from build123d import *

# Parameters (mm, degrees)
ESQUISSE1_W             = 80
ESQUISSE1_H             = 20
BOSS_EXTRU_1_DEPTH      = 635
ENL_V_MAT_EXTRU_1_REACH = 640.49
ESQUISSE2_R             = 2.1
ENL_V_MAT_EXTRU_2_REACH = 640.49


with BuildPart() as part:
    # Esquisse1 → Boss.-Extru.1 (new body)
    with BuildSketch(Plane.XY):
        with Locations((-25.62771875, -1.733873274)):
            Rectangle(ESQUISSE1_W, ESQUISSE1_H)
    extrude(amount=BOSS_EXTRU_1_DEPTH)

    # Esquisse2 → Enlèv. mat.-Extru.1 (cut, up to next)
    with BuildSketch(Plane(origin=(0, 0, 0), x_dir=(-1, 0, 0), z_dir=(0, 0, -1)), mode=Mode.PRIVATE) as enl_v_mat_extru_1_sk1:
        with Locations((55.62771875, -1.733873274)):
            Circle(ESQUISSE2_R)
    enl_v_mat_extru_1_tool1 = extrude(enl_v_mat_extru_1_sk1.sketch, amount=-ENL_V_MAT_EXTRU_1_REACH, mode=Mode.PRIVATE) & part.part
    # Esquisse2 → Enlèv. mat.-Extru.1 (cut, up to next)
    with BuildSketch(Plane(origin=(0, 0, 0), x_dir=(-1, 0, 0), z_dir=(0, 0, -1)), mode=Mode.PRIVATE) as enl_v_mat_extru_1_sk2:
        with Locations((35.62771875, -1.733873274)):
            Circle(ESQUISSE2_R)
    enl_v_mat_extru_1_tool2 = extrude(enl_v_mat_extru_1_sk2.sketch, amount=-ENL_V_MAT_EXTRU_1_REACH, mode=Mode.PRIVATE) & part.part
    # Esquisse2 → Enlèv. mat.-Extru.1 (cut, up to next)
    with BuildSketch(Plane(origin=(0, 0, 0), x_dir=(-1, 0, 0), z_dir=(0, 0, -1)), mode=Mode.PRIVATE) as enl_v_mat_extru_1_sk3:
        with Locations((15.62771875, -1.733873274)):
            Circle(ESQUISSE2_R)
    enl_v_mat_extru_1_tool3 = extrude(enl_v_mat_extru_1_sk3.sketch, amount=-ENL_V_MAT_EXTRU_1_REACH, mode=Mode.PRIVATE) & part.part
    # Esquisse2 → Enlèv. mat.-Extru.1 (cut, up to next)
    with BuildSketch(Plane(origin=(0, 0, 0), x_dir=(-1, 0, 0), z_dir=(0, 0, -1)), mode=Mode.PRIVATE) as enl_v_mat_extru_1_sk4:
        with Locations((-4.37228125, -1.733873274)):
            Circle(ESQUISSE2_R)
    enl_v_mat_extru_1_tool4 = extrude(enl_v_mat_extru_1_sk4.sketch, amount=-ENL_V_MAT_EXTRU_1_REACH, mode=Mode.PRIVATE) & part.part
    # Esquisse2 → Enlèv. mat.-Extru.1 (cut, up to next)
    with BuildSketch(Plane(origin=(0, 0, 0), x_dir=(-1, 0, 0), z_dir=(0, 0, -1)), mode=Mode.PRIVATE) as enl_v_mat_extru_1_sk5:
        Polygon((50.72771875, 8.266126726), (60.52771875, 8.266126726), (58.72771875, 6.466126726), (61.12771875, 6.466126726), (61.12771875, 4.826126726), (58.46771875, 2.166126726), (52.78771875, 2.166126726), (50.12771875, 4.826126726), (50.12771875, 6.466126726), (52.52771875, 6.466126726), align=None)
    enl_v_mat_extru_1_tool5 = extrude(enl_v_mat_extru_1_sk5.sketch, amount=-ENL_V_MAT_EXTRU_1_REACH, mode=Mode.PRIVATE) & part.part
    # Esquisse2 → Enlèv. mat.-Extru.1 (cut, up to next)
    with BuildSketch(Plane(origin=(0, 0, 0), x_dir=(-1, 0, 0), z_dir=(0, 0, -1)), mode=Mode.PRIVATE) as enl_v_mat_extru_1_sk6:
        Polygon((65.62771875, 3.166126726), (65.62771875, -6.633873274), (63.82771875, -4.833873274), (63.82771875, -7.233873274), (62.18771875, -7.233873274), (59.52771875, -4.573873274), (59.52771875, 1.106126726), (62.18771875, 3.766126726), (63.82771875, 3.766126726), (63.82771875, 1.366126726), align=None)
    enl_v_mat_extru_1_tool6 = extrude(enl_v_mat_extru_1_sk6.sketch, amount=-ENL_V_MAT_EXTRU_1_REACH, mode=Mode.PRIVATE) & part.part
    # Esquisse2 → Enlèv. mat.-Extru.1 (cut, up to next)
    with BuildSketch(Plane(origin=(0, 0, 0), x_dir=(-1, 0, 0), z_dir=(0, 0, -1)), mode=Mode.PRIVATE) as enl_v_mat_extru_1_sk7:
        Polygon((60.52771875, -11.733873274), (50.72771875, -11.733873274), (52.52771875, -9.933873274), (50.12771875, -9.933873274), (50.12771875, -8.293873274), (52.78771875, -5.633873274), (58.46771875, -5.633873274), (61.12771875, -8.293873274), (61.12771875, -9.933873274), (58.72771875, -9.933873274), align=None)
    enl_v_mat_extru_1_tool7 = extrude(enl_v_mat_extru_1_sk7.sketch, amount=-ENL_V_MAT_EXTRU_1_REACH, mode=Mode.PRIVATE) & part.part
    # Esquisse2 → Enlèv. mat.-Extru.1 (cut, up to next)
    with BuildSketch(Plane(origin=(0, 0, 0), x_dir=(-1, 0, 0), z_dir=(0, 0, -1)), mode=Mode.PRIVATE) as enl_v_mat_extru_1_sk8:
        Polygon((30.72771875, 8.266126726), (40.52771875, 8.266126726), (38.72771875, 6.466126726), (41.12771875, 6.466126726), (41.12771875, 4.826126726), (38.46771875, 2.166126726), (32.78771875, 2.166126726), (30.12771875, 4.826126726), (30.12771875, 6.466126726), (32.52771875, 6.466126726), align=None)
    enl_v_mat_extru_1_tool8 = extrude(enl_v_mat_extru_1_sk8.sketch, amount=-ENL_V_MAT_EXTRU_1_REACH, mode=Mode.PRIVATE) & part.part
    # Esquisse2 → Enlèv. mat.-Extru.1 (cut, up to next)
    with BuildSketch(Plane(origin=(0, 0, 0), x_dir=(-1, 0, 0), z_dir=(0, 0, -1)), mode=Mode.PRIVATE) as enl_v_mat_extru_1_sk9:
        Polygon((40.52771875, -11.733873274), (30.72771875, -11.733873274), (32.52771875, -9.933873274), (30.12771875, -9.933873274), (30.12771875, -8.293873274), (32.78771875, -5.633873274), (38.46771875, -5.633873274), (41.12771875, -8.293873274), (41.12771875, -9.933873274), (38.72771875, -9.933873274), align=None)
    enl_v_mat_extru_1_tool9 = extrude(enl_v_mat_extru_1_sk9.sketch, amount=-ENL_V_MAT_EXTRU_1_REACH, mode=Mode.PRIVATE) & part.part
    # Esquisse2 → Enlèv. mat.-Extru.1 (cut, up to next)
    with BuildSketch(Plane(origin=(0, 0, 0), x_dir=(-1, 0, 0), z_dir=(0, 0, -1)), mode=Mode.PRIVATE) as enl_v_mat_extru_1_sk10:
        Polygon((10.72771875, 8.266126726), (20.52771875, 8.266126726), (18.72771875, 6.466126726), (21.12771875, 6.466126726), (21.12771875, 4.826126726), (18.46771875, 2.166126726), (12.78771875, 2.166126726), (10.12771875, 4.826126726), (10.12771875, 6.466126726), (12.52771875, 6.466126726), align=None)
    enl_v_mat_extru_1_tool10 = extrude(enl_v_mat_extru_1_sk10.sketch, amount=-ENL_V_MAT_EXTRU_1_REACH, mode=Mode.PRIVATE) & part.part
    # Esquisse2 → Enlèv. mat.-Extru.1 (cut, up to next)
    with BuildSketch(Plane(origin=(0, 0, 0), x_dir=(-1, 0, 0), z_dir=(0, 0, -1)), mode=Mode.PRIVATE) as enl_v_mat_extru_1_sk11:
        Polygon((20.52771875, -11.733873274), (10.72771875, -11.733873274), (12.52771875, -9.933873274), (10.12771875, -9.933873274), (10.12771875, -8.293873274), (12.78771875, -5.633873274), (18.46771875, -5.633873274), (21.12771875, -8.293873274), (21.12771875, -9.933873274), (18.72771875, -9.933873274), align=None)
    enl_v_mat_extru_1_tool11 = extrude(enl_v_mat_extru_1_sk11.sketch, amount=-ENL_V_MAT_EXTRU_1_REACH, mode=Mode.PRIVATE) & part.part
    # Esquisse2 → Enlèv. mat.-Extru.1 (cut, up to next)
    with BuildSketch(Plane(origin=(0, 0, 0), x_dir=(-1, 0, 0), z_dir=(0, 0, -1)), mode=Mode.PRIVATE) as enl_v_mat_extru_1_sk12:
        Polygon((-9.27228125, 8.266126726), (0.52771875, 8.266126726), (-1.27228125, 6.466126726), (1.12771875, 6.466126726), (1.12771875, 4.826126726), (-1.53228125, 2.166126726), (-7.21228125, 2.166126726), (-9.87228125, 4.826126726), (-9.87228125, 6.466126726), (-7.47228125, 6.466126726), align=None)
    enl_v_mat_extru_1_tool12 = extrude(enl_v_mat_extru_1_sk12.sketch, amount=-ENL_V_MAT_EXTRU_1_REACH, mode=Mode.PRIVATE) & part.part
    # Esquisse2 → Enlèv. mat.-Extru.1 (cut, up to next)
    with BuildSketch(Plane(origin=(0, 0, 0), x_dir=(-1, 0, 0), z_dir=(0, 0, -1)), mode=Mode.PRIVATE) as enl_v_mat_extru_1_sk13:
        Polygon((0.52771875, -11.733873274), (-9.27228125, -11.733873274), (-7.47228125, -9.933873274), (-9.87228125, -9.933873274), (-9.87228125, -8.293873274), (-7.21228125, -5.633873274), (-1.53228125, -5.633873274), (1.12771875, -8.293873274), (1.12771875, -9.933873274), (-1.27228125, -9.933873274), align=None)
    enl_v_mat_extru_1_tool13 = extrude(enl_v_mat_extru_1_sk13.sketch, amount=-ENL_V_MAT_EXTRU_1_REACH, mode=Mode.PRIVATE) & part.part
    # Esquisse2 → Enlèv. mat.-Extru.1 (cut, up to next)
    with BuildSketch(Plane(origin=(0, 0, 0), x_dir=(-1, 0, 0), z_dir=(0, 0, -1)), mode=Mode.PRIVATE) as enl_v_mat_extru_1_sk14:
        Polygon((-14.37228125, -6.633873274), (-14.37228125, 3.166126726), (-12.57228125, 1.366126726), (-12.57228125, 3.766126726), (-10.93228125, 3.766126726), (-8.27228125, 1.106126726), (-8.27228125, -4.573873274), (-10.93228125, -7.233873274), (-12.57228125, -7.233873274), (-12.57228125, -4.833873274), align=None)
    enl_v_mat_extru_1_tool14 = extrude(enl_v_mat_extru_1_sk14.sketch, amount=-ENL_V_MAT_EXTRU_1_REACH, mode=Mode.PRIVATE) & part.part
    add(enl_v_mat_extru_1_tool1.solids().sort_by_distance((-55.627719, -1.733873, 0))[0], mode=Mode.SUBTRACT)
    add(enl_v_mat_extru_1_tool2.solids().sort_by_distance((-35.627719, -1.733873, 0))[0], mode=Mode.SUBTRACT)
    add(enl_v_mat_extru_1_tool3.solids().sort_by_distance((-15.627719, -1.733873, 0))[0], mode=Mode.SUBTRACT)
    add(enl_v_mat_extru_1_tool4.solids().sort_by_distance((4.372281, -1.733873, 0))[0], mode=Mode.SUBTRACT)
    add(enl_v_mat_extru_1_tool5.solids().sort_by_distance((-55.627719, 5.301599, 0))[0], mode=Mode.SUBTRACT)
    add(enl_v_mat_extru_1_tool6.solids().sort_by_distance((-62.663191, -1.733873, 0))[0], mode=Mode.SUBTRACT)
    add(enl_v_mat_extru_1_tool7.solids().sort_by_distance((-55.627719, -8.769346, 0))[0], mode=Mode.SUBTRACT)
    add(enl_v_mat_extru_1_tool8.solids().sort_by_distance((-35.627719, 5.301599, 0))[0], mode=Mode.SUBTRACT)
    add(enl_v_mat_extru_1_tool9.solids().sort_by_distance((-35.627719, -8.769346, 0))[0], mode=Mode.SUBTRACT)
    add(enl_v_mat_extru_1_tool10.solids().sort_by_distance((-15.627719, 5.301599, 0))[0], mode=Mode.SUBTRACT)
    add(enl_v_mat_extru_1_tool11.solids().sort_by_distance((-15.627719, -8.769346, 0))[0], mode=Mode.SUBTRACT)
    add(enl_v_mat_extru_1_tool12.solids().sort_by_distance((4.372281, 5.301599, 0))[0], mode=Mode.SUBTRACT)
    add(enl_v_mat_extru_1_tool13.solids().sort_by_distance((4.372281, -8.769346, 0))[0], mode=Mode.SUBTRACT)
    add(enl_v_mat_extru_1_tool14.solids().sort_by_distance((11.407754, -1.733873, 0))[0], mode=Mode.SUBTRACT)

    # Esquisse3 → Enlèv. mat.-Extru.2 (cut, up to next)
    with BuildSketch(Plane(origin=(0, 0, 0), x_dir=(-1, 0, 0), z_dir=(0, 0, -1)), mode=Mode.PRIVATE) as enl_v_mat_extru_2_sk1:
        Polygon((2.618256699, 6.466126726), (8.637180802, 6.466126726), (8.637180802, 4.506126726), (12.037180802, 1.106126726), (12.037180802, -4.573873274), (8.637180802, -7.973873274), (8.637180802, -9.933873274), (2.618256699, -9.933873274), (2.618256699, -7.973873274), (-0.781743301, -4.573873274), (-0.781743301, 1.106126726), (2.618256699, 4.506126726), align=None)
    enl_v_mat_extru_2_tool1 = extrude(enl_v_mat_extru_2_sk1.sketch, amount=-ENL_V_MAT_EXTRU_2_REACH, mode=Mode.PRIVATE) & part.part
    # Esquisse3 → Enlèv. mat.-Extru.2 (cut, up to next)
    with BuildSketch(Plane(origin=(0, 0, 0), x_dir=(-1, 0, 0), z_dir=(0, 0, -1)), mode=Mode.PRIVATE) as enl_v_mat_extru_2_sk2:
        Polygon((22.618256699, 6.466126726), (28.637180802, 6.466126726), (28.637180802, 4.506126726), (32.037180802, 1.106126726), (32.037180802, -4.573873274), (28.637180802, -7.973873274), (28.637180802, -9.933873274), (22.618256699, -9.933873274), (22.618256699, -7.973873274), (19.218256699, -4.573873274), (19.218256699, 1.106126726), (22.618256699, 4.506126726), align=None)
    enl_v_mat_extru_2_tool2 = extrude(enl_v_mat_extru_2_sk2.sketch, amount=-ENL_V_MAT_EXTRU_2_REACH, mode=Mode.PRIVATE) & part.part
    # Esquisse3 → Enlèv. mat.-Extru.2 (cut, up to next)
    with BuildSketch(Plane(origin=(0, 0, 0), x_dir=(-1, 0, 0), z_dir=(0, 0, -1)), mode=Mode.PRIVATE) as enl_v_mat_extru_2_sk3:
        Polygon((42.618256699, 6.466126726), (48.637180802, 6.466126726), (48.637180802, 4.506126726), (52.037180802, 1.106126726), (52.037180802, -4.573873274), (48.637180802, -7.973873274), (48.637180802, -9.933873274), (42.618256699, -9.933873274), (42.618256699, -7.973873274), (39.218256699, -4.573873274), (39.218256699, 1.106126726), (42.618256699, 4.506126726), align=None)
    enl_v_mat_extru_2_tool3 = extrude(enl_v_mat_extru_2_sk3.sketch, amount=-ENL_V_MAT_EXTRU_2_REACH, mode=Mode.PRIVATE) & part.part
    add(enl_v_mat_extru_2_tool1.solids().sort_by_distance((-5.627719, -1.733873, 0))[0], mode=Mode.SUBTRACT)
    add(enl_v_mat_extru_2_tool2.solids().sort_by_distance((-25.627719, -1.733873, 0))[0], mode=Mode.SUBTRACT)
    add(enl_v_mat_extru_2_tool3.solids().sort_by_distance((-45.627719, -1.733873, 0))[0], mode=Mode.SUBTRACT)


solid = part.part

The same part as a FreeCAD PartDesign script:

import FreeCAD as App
import Part
import Sketcher
from FreeCAD import Vector


def add_polygon(sketch, points):
    """Adds a closed chain of lines whose ends are joined by coincident constraints."""
    first, n = sketch.GeometryCount, len(points)
    for a, b in zip(points, points[1:] + points[:1]):
        sketch.addGeometry(Part.LineSegment(App.Vector(*a, 0), App.Vector(*b, 0)), False)
    for i in range(n):
        sketch.addConstraint(Sketcher.Constraint("Coincident", first + i, 2, first + (i + 1) % n, 1))

doc = App.newDocument("Part")
params = doc.addObject("Spreadsheet::Sheet", "Params")
for row, (alias, value) in enumerate([
    ("sketch1_width", "80 mm"),
    ("sketch1_height", "20 mm"),
    ("pad1_length", "635 mm"),
    ("sketch2_diameter", "4.2 mm"),
    ("sketch3_diameter", "4.2 mm"),
    ("sketch4_diameter", "4.2 mm"),
    ("sketch5_diameter", "4.2 mm"),
    ("sketch6_width", "9.8 mm"),
    ("sketch6_width2", "2.4 mm"),
    ("sketch6_width3", "5.68 mm"),
    ("sketch6_height", "1.64 mm"),
    ("sketch7_height", "9.8 mm"),
    ("sketch7_height2", "2.4 mm"),
    ("sketch7_width", "1.64 mm"),
    ("sketch7_height3", "5.68 mm"),
    ("sketch8_width", "9.8 mm"),
    ("sketch8_width2", "2.4 mm"),
    ("sketch8_width3", "5.68 mm"),
    ("sketch8_height", "1.64 mm"),
    ("sketch9_width", "9.8 mm"),
    ("sketch9_width2", "2.4 mm"),
    ("sketch9_width3", "5.68 mm"),
    ("sketch9_height", "1.64 mm"),
    ("sketch10_width", "9.8 mm"),
    ("sketch10_width2", "2.4 mm"),
    ("sketch10_width3", "5.68 mm"),
    ("sketch10_height", "1.64 mm"),
    ("sketch11_width", "9.8 mm"),
    ("sketch11_width2", "2.4 mm"),
    ("sketch11_width3", "5.68 mm"),
    ("sketch11_height", "1.64 mm"),
    ("sketch12_width", "9.8 mm"),
    ("sketch12_width2", "2.4 mm"),
    ("sketch12_width3", "5.68 mm"),
    ("sketch12_height", "1.64 mm"),
    ("sketch13_width", "9.8 mm"),
    ("sketch13_width2", "2.4 mm"),
    ("sketch13_width3", "5.68 mm"),
    ("sketch13_height", "1.64 mm"),
    ("sketch14_width", "9.8 mm"),
    ("sketch14_width2", "2.4 mm"),
    ("sketch14_width3", "5.68 mm"),
    ("sketch14_height", "1.64 mm"),
    ("sketch15_height", "9.8 mm"),
    ("sketch15_height2", "2.4 mm"),
    ("sketch15_width", "1.64 mm"),
    ("sketch15_height3", "5.68 mm"),
    ("sketch16_height", "1.96 mm"),
    ("sketch16_height2", "5.68 mm"),
    ("sketch17_height", "1.96 mm"),
    ("sketch17_height2", "5.68 mm"),
    ("sketch18_height", "1.96 mm"),
    ("sketch18_height2", "5.68 mm"),
], start=1):
    params.set(f"A{row}", alias)
    params.set(f"B{row}", "=" + value)
    params.setAlias(f"B{row}", alias)

body = doc.addObject("PartDesign::Body", "Body")

sketch1 = body.newObject("Sketcher::SketchObject", "Sketch")
sketch1.AttachmentSupport = (doc.getObject("XY_Plane"), [""])
sketch1.MapMode = "FlatFace"
add_polygon(sketch1, [(-66, 8), (-66, -12), (14, -12), (14, 8)])
sketch1.addConstraint([
    Sketcher.Constraint("Vertical", 0),
    Sketcher.Constraint("Horizontal", 1),
    Sketcher.Constraint("Vertical", 2),
    Sketcher.Constraint("Horizontal", 3),
    Sketcher.Constraint("DistanceX", 1, 1, 1, 2, 80.0),
    Sketcher.Constraint("DistanceY", 0, 2, 0, 1, 20.0),
    Sketcher.Constraint("DistanceX", 0, 2, -1, 1, 65.627719),
    Sketcher.Constraint("DistanceY", 0, 2, -1, 1, 11.733873),
])
sketch1.setExpression("Constraints[8]", "Params.sketch1_width")
sketch1.setExpression("Constraints[9]", "Params.sketch1_height")
pad1 = body.newObject("PartDesign::Pad", "Pad")
pad1.Profile = sketch1
pad1.setExpression("Length", "Params.pad1_length")

sketch2 = body.newObject("Sketcher::SketchObject", "Sketch001")
sketch2.AttachmentSupport = (doc.getObject("XY_Plane"), [""])
sketch2.MapMode = "FlatFace"
sketch2.addGeometry(Part.Circle(Vector(-55.6, -1.7, 0), Vector(0, 0, 1), 2.1), False)
sketch2.addConstraint([
    Sketcher.Constraint("Diameter", 0, 4.2),
    Sketcher.Constraint("DistanceX", 0, 3, -1, 1, 55.627719),
    Sketcher.Constraint("DistanceY", 0, 3, -1, 1, 1.733873),
])
sketch2.setExpression("Constraints[0]", "Params.sketch2_diameter")
pocket1 = body.newObject("PartDesign::Pocket", "Pocket")
pocket1.Profile = sketch2
pocket1.Type = "UpToFirst"
pocket1.Reversed = True

sketch3 = body.newObject("Sketcher::SketchObject", "Sketch002")
sketch3.AttachmentSupport = (doc.getObject("XY_Plane"), [""])
sketch3.MapMode = "FlatFace"
sketch3.addGeometry(Part.Circle(Vector(-35.6, -1.7, 0), Vector(0, 0, 1), 2.1), False)
sketch3.addConstraint([
    Sketcher.Constraint("Diameter", 0, 4.2),
    Sketcher.Constraint("DistanceX", 0, 3, -1, 1, 35.627719),
    Sketcher.Constraint("DistanceY", 0, 3, -1, 1, 1.733873),
])
sketch3.setExpression("Constraints[0]", "Params.sketch3_diameter")
pocket2 = body.newObject("PartDesign::Pocket", "Pocket001")
pocket2.Profile = sketch3
pocket2.Type = "UpToFirst"
pocket2.Reversed = True

sketch4 = body.newObject("Sketcher::SketchObject", "Sketch003")
sketch4.AttachmentSupport = (doc.getObject("XY_Plane"), [""])
sketch4.MapMode = "FlatFace"
sketch4.addGeometry(Part.Circle(Vector(-15.6, -1.7, 0), Vector(0, 0, 1), 2.1), False)
sketch4.addConstraint([
    Sketcher.Constraint("Diameter", 0, 4.2),
    Sketcher.Constraint("DistanceX", 0, 3, -1, 1, 15.627719),
    Sketcher.Constraint("DistanceY", 0, 3, -1, 1, 1.733873),
])
sketch4.setExpression("Constraints[0]", "Params.sketch4_diameter")
pocket3 = body.newObject("PartDesign::Pocket", "Pocket002")
pocket3.Profile = sketch4
pocket3.Type = "UpToFirst"
pocket3.Reversed = True

sketch5 = body.newObject("Sketcher::SketchObject", "Sketch004")
sketch5.AttachmentSupport = (doc.getObject("XY_Plane"), [""])
sketch5.MapMode = "FlatFace"
sketch5.addGeometry(Part.Circle(Vector(4.4, -1.7, 0), Vector(0, 0, 1), 2.1), False)
sketch5.addConstraint([
    Sketcher.Constraint("Diameter", 0, 4.2),
    Sketcher.Constraint("DistanceX", -1, 1, 0, 3, 4.372281),
    Sketcher.Constraint("DistanceY", 0, 3, -1, 1, 1.733873),
])
sketch5.setExpression("Constraints[0]", "Params.sketch5_diameter")
pocket4 = body.newObject("PartDesign::Pocket", "Pocket003")
pocket4.Profile = sketch5
pocket4.Type = "UpToFirst"
pocket4.Reversed = True

sketch6 = body.newObject("Sketcher::SketchObject", "Sketch005")
sketch6.AttachmentSupport = (doc.getObject("XY_Plane"), [""])
sketch6.MapMode = "FlatFace"
add_polygon(sketch6, [(-60.5, 8.3), (-50.7, 8.3), (-52.5, 6.5), (-50.1, 6.5), (-50.1, 4.8), (-52.8, 2.2), (-58.5, 2.2), (-61.1, 4.8), (-61.1, 6.5), (-58.7, 6.5)])
sketch6.addConstraint([
    Sketcher.Constraint("Horizontal", 0),
    Sketcher.Constraint("Horizontal", 2),
    Sketcher.Constraint("Vertical", 3),
    Sketcher.Constraint("Horizontal", 5),
    Sketcher.Constraint("Vertical", 7),
    Sketcher.Constraint("Horizontal", 8),
    Sketcher.Constraint("Parallel", 1, 4),
    Sketcher.Constraint("Perpendicular", 4, 6),
    Sketcher.Constraint("Parallel", 6, 9),
    Sketcher.Constraint("Horizontal", 3, 2, 6, 2),
    Sketcher.Constraint("Horizontal", 2, 2, 7, 2),
    Sketcher.Constraint("Equal", 2, 8),
    Sketcher.Constraint("Equal", 4, 6),
    Sketcher.Constraint("DistanceX", 0, 1, 0, 2, 9.8),
    Sketcher.Constraint("DistanceX", 2, 1, 2, 2, 2.4),
    Sketcher.Constraint("DistanceX", 6, 2, 3, 2, 11.0),
    Sketcher.Constraint("DistanceX", 5, 2, 5, 1, 5.68),
    Sketcher.Constraint("DistanceY", 3, 2, 3, 1, 1.64),
    Sketcher.Constraint("DistanceX", 0, 2, -1, 1, 50.727719),
    Sketcher.Constraint("DistanceY", -1, 1, 0, 2, 8.266127),
])
sketch6.setExpression("Constraints[23]", "Params.sketch6_width")
sketch6.setExpression("Constraints[24]", "Params.sketch6_width2")
sketch6.setExpression("Constraints[26]", "Params.sketch6_width3")
sketch6.setExpression("Constraints[27]", "Params.sketch6_height")
pocket5 = body.newObject("PartDesign::Pocket", "Pocket004")
pocket5.Profile = sketch6
pocket5.Type = "UpToFirst"
pocket5.Reversed = True

sketch7 = body.newObject("Sketcher::SketchObject", "Sketch006")
sketch7.AttachmentSupport = (doc.getObject("XY_Plane"), [""])
sketch7.MapMode = "FlatFace"
add_polygon(sketch7, [(-65.6, -6.6), (-65.6, 3.2), (-63.8, 1.4), (-63.8, 3.8), (-62.2, 3.8), (-59.5, 1.1), (-59.5, -4.6), (-62.2, -7.2), (-63.8, -7.2), (-63.8, -4.8)])
sketch7.addConstraint([
    Sketcher.Constraint("Vertical", 0),
    Sketcher.Constraint("Vertical", 2),
    Sketcher.Constraint("Horizontal", 3),
    Sketcher.Constraint("Vertical", 5),
    Sketcher.Constraint("Horizontal", 7),
    Sketcher.Constraint("Vertical", 8),
    Sketcher.Constraint("Parallel", 1, 4),
    Sketcher.Constraint("Perpendicular", 4, 6),
    Sketcher.Constraint("Parallel", 6, 9),
    Sketcher.Constraint("Vertical", 3, 2, 6, 2),
    Sketcher.Constraint("Vertical", 2, 2, 7, 2),
    Sketcher.Constraint("Equal", 2, 8),
    Sketcher.Constraint("Equal", 4, 6),
    Sketcher.Constraint("DistanceY", 0, 1, 0, 2, 9.8),
    Sketcher.Constraint("DistanceY", 2, 1, 2, 2, 2.4),
    Sketcher.Constraint("DistanceY", 6, 2, 3, 2, 11.0),
    Sketcher.Constraint("DistanceX", 3, 1, 3, 2, 1.64),
    Sketcher.Constraint("DistanceY", 5, 2, 5, 1, 5.68),
    Sketcher.Constraint("DistanceX", 0, 2, -1, 1, 65.627719),
    Sketcher.Constraint("DistanceY", -1, 1, 0, 2, 3.166127),
])
sketch7.setExpression("Constraints[23]", "Params.sketch7_height")
sketch7.setExpression("Constraints[24]", "Params.sketch7_height2")
sketch7.setExpression("Constraints[26]", "Params.sketch7_width")
sketch7.setExpression("Constraints[27]", "Params.sketch7_height3")
pocket6 = body.newObject("PartDesign::Pocket", "Pocket005")
pocket6.Profile = sketch7
pocket6.Type = "UpToFirst"
pocket6.Reversed = True

sketch8 = body.newObject("Sketcher::SketchObject", "Sketch007")
sketch8.AttachmentSupport = (doc.getObject("XY_Plane"), [""])
sketch8.MapMode = "FlatFace"
add_polygon(sketch8, [(-50.7, -11.7), (-60.5, -11.7), (-58.7, -9.9), (-61.1, -9.9), (-61.1, -8.3), (-58.5, -5.6), (-52.8, -5.6), (-50.1, -8.3), (-50.1, -9.9), (-52.5, -9.9)])
sketch8.addConstraint([
    Sketcher.Constraint("Horizontal", 0),
    Sketcher.Constraint("Horizontal", 2),
    Sketcher.Constraint("Vertical", 3),
    Sketcher.Constraint("Horizontal", 5),
    Sketcher.Constraint("Vertical", 7),
    Sketcher.Constraint("Horizontal", 8),
    Sketcher.Constraint("Parallel", 1, 4),
    Sketcher.Constraint("Perpendicular", 4, 6),
    Sketcher.Constraint("Parallel", 6, 9),
    Sketcher.Constraint("Horizontal", 3, 2, 6, 2),
    Sketcher.Constraint("Horizontal", 2, 2, 7, 2),
    Sketcher.Constraint("Equal", 2, 8),
    Sketcher.Constraint("Equal", 4, 6),
    Sketcher.Constraint("DistanceX", 0, 2, 0, 1, 9.8),
    Sketcher.Constraint("DistanceX", 2, 2, 2, 1, 2.4),
    Sketcher.Constraint("DistanceX", 3, 2, 6, 2, 11.0),
    Sketcher.Constraint("DistanceX", 5, 1, 5, 2, 5.68),
    Sketcher.Constraint("DistanceY", 3, 1, 3, 2, 1.64),
    Sketcher.Constraint("DistanceX", 0, 2, -1, 1, 60.527719),
    Sketcher.Constraint("DistanceY", 0, 2, -1, 1, 11.733873),
])
sketch8.setExpression("Constraints[23]", "Params.sketch8_width")
sketch8.setExpression("Constraints[24]", "Params.sketch8_width2")
sketch8.setExpression("Constraints[26]", "Params.sketch8_width3")
sketch8.setExpression("Constraints[27]", "Params.sketch8_height")
pocket7 = body.newObject("PartDesign::Pocket", "Pocket006")
pocket7.Profile = sketch8
pocket7.Type = "UpToFirst"
pocket7.Reversed = True

sketch9 = body.newObject("Sketcher::SketchObject", "Sketch008")
sketch9.AttachmentSupport = (doc.getObject("XY_Plane"), [""])
sketch9.MapMode = "FlatFace"
add_polygon(sketch9, [(-40.5, 8.3), (-30.7, 8.3), (-32.5, 6.5), (-30.1, 6.5), (-30.1, 4.8), (-32.8, 2.2), (-38.5, 2.2), (-41.1, 4.8), (-41.1, 6.5), (-38.7, 6.5)])
sketch9.addConstraint([
    Sketcher.Constraint("Horizontal", 0),
    Sketcher.Constraint("Horizontal", 2),
    Sketcher.Constraint("Vertical", 3),
    Sketcher.Constraint("Horizontal", 5),
    Sketcher.Constraint("Vertical", 7),
    Sketcher.Constraint("Horizontal", 8),
    Sketcher.Constraint("Parallel", 1, 4),
    Sketcher.Constraint("Perpendicular", 4, 6),
    Sketcher.Constraint("Parallel", 6, 9),
    Sketcher.Constraint("Horizontal", 3, 2, 6, 2),
    Sketcher.Constraint("Horizontal", 2, 2, 7, 2),
    Sketcher.Constraint("Equal", 2, 8),
    Sketcher.Constraint("Equal", 4, 6),
    Sketcher.Constraint("DistanceX", 0, 1, 0, 2, 9.8),
    Sketcher.Constraint("DistanceX", 2, 1, 2, 2, 2.4),
    Sketcher.Constraint("DistanceX", 6, 2, 3, 2, 11.0),
    Sketcher.Constraint("DistanceX", 5, 2, 5, 1, 5.68),
    Sketcher.Constraint("DistanceY", 3, 2, 3, 1, 1.64),
    Sketcher.Constraint("DistanceX", 0, 2, -1, 1, 30.727719),
    Sketcher.Constraint("DistanceY", -1, 1, 0, 2, 8.266127),
])
sketch9.setExpression("Constraints[23]", "Params.sketch9_width")
sketch9.setExpression("Constraints[24]", "Params.sketch9_width2")
sketch9.setExpression("Constraints[26]", "Params.sketch9_width3")
sketch9.setExpression("Constraints[27]", "Params.sketch9_height")
pocket8 = body.newObject("PartDesign::Pocket", "Pocket007")
pocket8.Profile = sketch9
pocket8.Type = "UpToFirst"
pocket8.Reversed = True

sketch10 = body.newObject("Sketcher::SketchObject", "Sketch009")
sketch10.AttachmentSupport = (doc.getObject("XY_Plane"), [""])
sketch10.MapMode = "FlatFace"
add_polygon(sketch10, [(-30.7, -11.7), (-40.5, -11.7), (-38.7, -9.9), (-41.1, -9.9), (-41.1, -8.3), (-38.5, -5.6), (-32.8, -5.6), (-30.1, -8.3), (-30.1, -9.9), (-32.5, -9.9)])
sketch10.addConstraint([
    Sketcher.Constraint("Horizontal", 0),
    Sketcher.Constraint("Horizontal", 2),
    Sketcher.Constraint("Vertical", 3),
    Sketcher.Constraint("Horizontal", 5),
    Sketcher.Constraint("Vertical", 7),
    Sketcher.Constraint("Horizontal", 8),
    Sketcher.Constraint("Parallel", 1, 4),
    Sketcher.Constraint("Perpendicular", 4, 6),
    Sketcher.Constraint("Parallel", 6, 9),
    Sketcher.Constraint("Horizontal", 3, 2, 6, 2),
    Sketcher.Constraint("Horizontal", 2, 2, 7, 2),
    Sketcher.Constraint("Equal", 2, 8),
    Sketcher.Constraint("Equal", 4, 6),
    Sketcher.Constraint("DistanceX", 0, 2, 0, 1, 9.8),
    Sketcher.Constraint("DistanceX", 2, 2, 2, 1, 2.4),
    Sketcher.Constraint("DistanceX", 3, 2, 6, 2, 11.0),
    Sketcher.Constraint("DistanceX", 5, 1, 5, 2, 5.68),
    Sketcher.Constraint("DistanceY", 3, 1, 3, 2, 1.64),
    Sketcher.Constraint("DistanceX", 0, 2, -1, 1, 40.527719),
    Sketcher.Constraint("DistanceY", 0, 2, -1, 1, 11.733873),
])
sketch10.setExpression("Constraints[23]", "Params.sketch10_width")
sketch10.setExpression("Constraints[24]", "Params.sketch10_width2")
sketch10.setExpression("Constraints[26]", "Params.sketch10_width3")
sketch10.setExpression("Constraints[27]", "Params.sketch10_height")
pocket9 = body.newObject("PartDesign::Pocket", "Pocket008")
pocket9.Profile = sketch10
pocket9.Type = "UpToFirst"
pocket9.Reversed = True

sketch11 = body.newObject("Sketcher::SketchObject", "Sketch010")
sketch11.AttachmentSupport = (doc.getObject("XY_Plane"), [""])
sketch11.MapMode = "FlatFace"
add_polygon(sketch11, [(-20.5, 8.3), (-10.7, 8.3), (-12.5, 6.5), (-10.1, 6.5), (-10.1, 4.8), (-12.8, 2.2), (-18.5, 2.2), (-21.1, 4.8), (-21.1, 6.5), (-18.7, 6.5)])
sketch11.addConstraint([
    Sketcher.Constraint("Horizontal", 0),
    Sketcher.Constraint("Horizontal", 2),
    Sketcher.Constraint("Vertical", 3),
    Sketcher.Constraint("Horizontal", 5),
    Sketcher.Constraint("Vertical", 7),
    Sketcher.Constraint("Horizontal", 8),
    Sketcher.Constraint("Parallel", 1, 4),
    Sketcher.Constraint("Perpendicular", 4, 6),
    Sketcher.Constraint("Parallel", 6, 9),
    Sketcher.Constraint("Horizontal", 3, 2, 6, 2),
    Sketcher.Constraint("Horizontal", 2, 2, 7, 2),
    Sketcher.Constraint("Equal", 2, 8),
    Sketcher.Constraint("Equal", 4, 6),
    Sketcher.Constraint("DistanceX", 0, 1, 0, 2, 9.8),
    Sketcher.Constraint("DistanceX", 2, 1, 2, 2, 2.4),
    Sketcher.Constraint("DistanceX", 6, 2, 3, 2, 11.0),
    Sketcher.Constraint("DistanceX", 5, 2, 5, 1, 5.68),
    Sketcher.Constraint("DistanceY", 3, 2, 3, 1, 1.64),
    Sketcher.Constraint("DistanceX", 0, 2, -1, 1, 10.727719),
    Sketcher.Constraint("DistanceY", -1, 1, 0, 2, 8.266127),
])
sketch11.setExpression("Constraints[23]", "Params.sketch11_width")
sketch11.setExpression("Constraints[24]", "Params.sketch11_width2")
sketch11.setExpression("Constraints[26]", "Params.sketch11_width3")
sketch11.setExpression("Constraints[27]", "Params.sketch11_height")
pocket10 = body.newObject("PartDesign::Pocket", "Pocket009")
pocket10.Profile = sketch11
pocket10.Type = "UpToFirst"
pocket10.Reversed = True

sketch12 = body.newObject("Sketcher::SketchObject", "Sketch011")
sketch12.AttachmentSupport = (doc.getObject("XY_Plane"), [""])
sketch12.MapMode = "FlatFace"
add_polygon(sketch12, [(-10.7, -11.7), (-20.5, -11.7), (-18.7, -9.9), (-21.1, -9.9), (-21.1, -8.3), (-18.5, -5.6), (-12.8, -5.6), (-10.1, -8.3), (-10.1, -9.9), (-12.5, -9.9)])
sketch12.addConstraint([
    Sketcher.Constraint("Horizontal", 0),
    Sketcher.Constraint("Horizontal", 2),
    Sketcher.Constraint("Vertical", 3),
    Sketcher.Constraint("Horizontal", 5),
    Sketcher.Constraint("Vertical", 7),
    Sketcher.Constraint("Horizontal", 8),
    Sketcher.Constraint("Parallel", 1, 4),
    Sketcher.Constraint("Perpendicular", 4, 6),
    Sketcher.Constraint("Parallel", 6, 9),
    Sketcher.Constraint("Horizontal", 3, 2, 6, 2),
    Sketcher.Constraint("Horizontal", 2, 2, 7, 2),
    Sketcher.Constraint("Equal", 2, 8),
    Sketcher.Constraint("Equal", 4, 6),
    Sketcher.Constraint("DistanceX", 0, 2, 0, 1, 9.8),
    Sketcher.Constraint("DistanceX", 2, 2, 2, 1, 2.4),
    Sketcher.Constraint("DistanceX", 3, 2, 6, 2, 11.0),
    Sketcher.Constraint("DistanceX", 5, 1, 5, 2, 5.68),
    Sketcher.Constraint("DistanceY", 3, 1, 3, 2, 1.64),
    Sketcher.Constraint("DistanceX", 0, 2, -1, 1, 20.527719),
    Sketcher.Constraint("DistanceY", 0, 2, -1, 1, 11.733873),
])
sketch12.setExpression("Constraints[23]", "Params.sketch12_width")
sketch12.setExpression("Constraints[24]", "Params.sketch12_width2")
sketch12.setExpression("Constraints[26]", "Params.sketch12_width3")
sketch12.setExpression("Constraints[27]", "Params.sketch12_height")
pocket11 = body.newObject("PartDesign::Pocket", "Pocket010")
pocket11.Profile = sketch12
pocket11.Type = "UpToFirst"
pocket11.Reversed = True

sketch13 = body.newObject("Sketcher::SketchObject", "Sketch012")
sketch13.AttachmentSupport = (doc.getObject("XY_Plane"), [""])
sketch13.MapMode = "FlatFace"
add_polygon(sketch13, [(-0.5, 8.3), (9.3, 8.3), (7.5, 6.5), (9.9, 6.5), (9.9, 4.8), (7.2, 2.2), (1.5, 2.2), (-1.1, 4.8), (-1.1, 6.5), (1.3, 6.5)])
sketch13.addConstraint([
    Sketcher.Constraint("Horizontal", 0),
    Sketcher.Constraint("Horizontal", 2),
    Sketcher.Constraint("Vertical", 3),
    Sketcher.Constraint("Horizontal", 5),
    Sketcher.Constraint("Vertical", 7),
    Sketcher.Constraint("Horizontal", 8),
    Sketcher.Constraint("Parallel", 1, 4),
    Sketcher.Constraint("Perpendicular", 4, 6),
    Sketcher.Constraint("Parallel", 6, 9),
    Sketcher.Constraint("Horizontal", 3, 2, 6, 2),
    Sketcher.Constraint("Horizontal", 2, 2, 7, 2),
    Sketcher.Constraint("Equal", 2, 8),
    Sketcher.Constraint("Equal", 4, 6),
    Sketcher.Constraint("DistanceX", 0, 1, 0, 2, 9.8),
    Sketcher.Constraint("DistanceX", 2, 1, 2, 2, 2.4),
    Sketcher.Constraint("DistanceX", 6, 2, 3, 2, 11.0),
    Sketcher.Constraint("DistanceX", 5, 2, 5, 1, 5.68),
    Sketcher.Constraint("DistanceY", 3, 2, 3, 1, 1.64),
    Sketcher.Constraint("DistanceX", -1, 1, 0, 2, 9.272281),
    Sketcher.Constraint("DistanceY", -1, 1, 0, 2, 8.266127),
])
sketch13.setExpression("Constraints[23]", "Params.sketch13_width")
sketch13.setExpression("Constraints[24]", "Params.sketch13_width2")
sketch13.setExpression("Constraints[26]", "Params.sketch13_width3")
sketch13.setExpression("Constraints[27]", "Params.sketch13_height")
pocket12 = body.newObject("PartDesign::Pocket", "Pocket011")
pocket12.Profile = sketch13
pocket12.Type = "UpToFirst"
pocket12.Reversed = True

sketch14 = body.newObject("Sketcher::SketchObject", "Sketch013")
sketch14.AttachmentSupport = (doc.getObject("XY_Plane"), [""])
sketch14.MapMode = "FlatFace"
add_polygon(sketch14, [(9.3, -11.7), (-0.5, -11.7), (1.3, -9.9), (-1.1, -9.9), (-1.1, -8.3), (1.5, -5.6), (7.2, -5.6), (9.9, -8.3), (9.9, -9.9), (7.5, -9.9)])
sketch14.addConstraint([
    Sketcher.Constraint("Horizontal", 0),
    Sketcher.Constraint("Horizontal", 2),
    Sketcher.Constraint("Vertical", 3),
    Sketcher.Constraint("Horizontal", 5),
    Sketcher.Constraint("Vertical", 7),
    Sketcher.Constraint("Horizontal", 8),
    Sketcher.Constraint("Parallel", 1, 4),
    Sketcher.Constraint("Perpendicular", 4, 6),
    Sketcher.Constraint("Parallel", 6, 9),
    Sketcher.Constraint("Horizontal", 3, 2, 6, 2),
    Sketcher.Constraint("Horizontal", 2, 2, 7, 2),
    Sketcher.Constraint("Equal", 2, 8),
    Sketcher.Constraint("Equal", 4, 6),
    Sketcher.Constraint("DistanceX", 0, 2, 0, 1, 9.8),
    Sketcher.Constraint("DistanceX", 2, 2, 2, 1, 2.4),
    Sketcher.Constraint("DistanceX", 3, 2, 6, 2, 11.0),
    Sketcher.Constraint("DistanceX", 5, 1, 5, 2, 5.68),
    Sketcher.Constraint("DistanceY", 3, 1, 3, 2, 1.64),
    Sketcher.Constraint("DistanceX", 0, 2, -1, 1, 0.527719),
    Sketcher.Constraint("DistanceY", 0, 2, -1, 1, 11.733873),
])
sketch14.setExpression("Constraints[23]", "Params.sketch14_width")
sketch14.setExpression("Constraints[24]", "Params.sketch14_width2")
sketch14.setExpression("Constraints[26]", "Params.sketch14_width3")
sketch14.setExpression("Constraints[27]", "Params.sketch14_height")
pocket13 = body.newObject("PartDesign::Pocket", "Pocket012")
pocket13.Profile = sketch14
pocket13.Type = "UpToFirst"
pocket13.Reversed = True

sketch15 = body.newObject("Sketcher::SketchObject", "Sketch014")
sketch15.AttachmentSupport = (doc.getObject("XY_Plane"), [""])
sketch15.MapMode = "FlatFace"
add_polygon(sketch15, [(14.4, 3.2), (14.4, -6.6), (12.6, -4.8), (12.6, -7.2), (10.9, -7.2), (8.3, -4.6), (8.3, 1.1), (10.9, 3.8), (12.6, 3.8), (12.6, 1.4)])
sketch15.addConstraint([
    Sketcher.Constraint("Vertical", 0),
    Sketcher.Constraint("Vertical", 2),
    Sketcher.Constraint("Horizontal", 3),
    Sketcher.Constraint("Vertical", 5),
    Sketcher.Constraint("Horizontal", 7),
    Sketcher.Constraint("Vertical", 8),
    Sketcher.Constraint("Parallel", 1, 4),
    Sketcher.Constraint("Perpendicular", 4, 6),
    Sketcher.Constraint("Parallel", 6, 9),
    Sketcher.Constraint("Vertical", 3, 2, 6, 2),
    Sketcher.Constraint("Vertical", 2, 2, 7, 2),
    Sketcher.Constraint("Equal", 2, 8),
    Sketcher.Constraint("Equal", 4, 6),
    Sketcher.Constraint("DistanceY", 0, 2, 0, 1, 9.8),
    Sketcher.Constraint("DistanceY", 2, 2, 2, 1, 2.4),
    Sketcher.Constraint("DistanceY", 3, 2, 6, 2, 11.0),
    Sketcher.Constraint("DistanceX", 3, 2, 3, 1, 1.64),
    Sketcher.Constraint("DistanceY", 5, 1, 5, 2, 5.68),
    Sketcher.Constraint("DistanceX", -1, 1, 0, 2, 14.372281),
    Sketcher.Constraint("DistanceY", 0, 2, -1, 1, 6.633873),
])
sketch15.setExpression("Constraints[23]", "Params.sketch15_height")
sketch15.setExpression("Constraints[24]", "Params.sketch15_height2")
sketch15.setExpression("Constraints[26]", "Params.sketch15_width")
sketch15.setExpression("Constraints[27]", "Params.sketch15_height3")
pocket14 = body.newObject("PartDesign::Pocket", "Pocket013")
pocket14.Profile = sketch15
pocket14.Type = "UpToFirst"
pocket14.Reversed = True

sketch16 = body.newObject("Sketcher::SketchObject", "Sketch015")
sketch16.AttachmentSupport = (doc.getObject("XY_Plane"), [""])
sketch16.MapMode = "FlatFace"
add_polygon(sketch16, [(-8.6, 6.5), (-2.6, 6.5), (-2.6, 4.5), (0.8, 1.1), (0.8, -4.6), (-2.6, -8), (-2.6, -9.9), (-8.6, -9.9), (-8.6, -8), (-12, -4.6), (-12, 1.1), (-8.6, 4.5)])
sketch16.addConstraint([
    Sketcher.Constraint("Horizontal", 0),
    Sketcher.Constraint("Vertical", 1),
    Sketcher.Constraint("Vertical", 3),
    Sketcher.Constraint("Vertical", 5),
    Sketcher.Constraint("Horizontal", 6),
    Sketcher.Constraint("Vertical", 7),
    Sketcher.Constraint("Vertical", 9),
    Sketcher.Constraint("Vertical", 11),
    Sketcher.Constraint("Perpendicular", 2, 4),
    Sketcher.Constraint("Perpendicular", 4, 8),
    Sketcher.Constraint("Perpendicular", 8, 10),
    Sketcher.Constraint("Horizontal", 4, 2, 7, 2),
    Sketcher.Constraint("Horizontal", 3, 2, 8, 2),
    Sketcher.Constraint("Horizontal", 2, 2, 9, 2),
    Sketcher.Constraint("Horizontal", 1, 2, 10, 2),
    Sketcher.Constraint("Vertical", 1, 2, 4, 2),
    Sketcher.Constraint("Vertical", 7, 2, 10, 2),
    Sketcher.Constraint("Equal", 1, 5),
    Sketcher.Constraint("DistanceY", 1, 2, 1, 1, 1.96),
    Sketcher.Constraint("DistanceY", 3, 2, 3, 1, 5.68),
    Sketcher.Constraint("DistanceX", 1, 2, 2, 2, 3.4),
    Sketcher.Constraint("DistanceX", 0, 1, 0, 2, 6.018924),
    Sketcher.Constraint("DistanceX", 6, 2, -1, 1, 8.637181),
    Sketcher.Constraint("DistanceY", -1, 1, 0, 2, 6.466127),
])
sketch16.setExpression("Constraints[30]", "Params.sketch16_height")
sketch16.setExpression("Constraints[31]", "Params.sketch16_height2")
pocket15 = body.newObject("PartDesign::Pocket", "Pocket014")
pocket15.Profile = sketch16
pocket15.Type = "UpToFirst"
pocket15.Reversed = True

sketch17 = body.newObject("Sketcher::SketchObject", "Sketch016")
sketch17.AttachmentSupport = (doc.getObject("XY_Plane"), [""])
sketch17.MapMode = "FlatFace"
add_polygon(sketch17, [(-28.6, 6.5), (-22.6, 6.5), (-22.6, 4.5), (-19.2, 1.1), (-19.2, -4.6), (-22.6, -8), (-22.6, -9.9), (-28.6, -9.9), (-28.6, -8), (-32, -4.6), (-32, 1.1), (-28.6, 4.5)])
sketch17.addConstraint([
    Sketcher.Constraint("Horizontal", 0),
    Sketcher.Constraint("Vertical", 1),
    Sketcher.Constraint("Vertical", 3),
    Sketcher.Constraint("Vertical", 5),
    Sketcher.Constraint("Horizontal", 6),
    Sketcher.Constraint("Vertical", 7),
    Sketcher.Constraint("Vertical", 9),
    Sketcher.Constraint("Vertical", 11),
    Sketcher.Constraint("Perpendicular", 2, 4),
    Sketcher.Constraint("Perpendicular", 4, 8),
    Sketcher.Constraint("Perpendicular", 8, 10),
    Sketcher.Constraint("Horizontal", 4, 2, 7, 2),
    Sketcher.Constraint("Horizontal", 3, 2, 8, 2),
    Sketcher.Constraint("Horizontal", 2, 2, 9, 2),
    Sketcher.Constraint("Horizontal", 1, 2, 10, 2),
    Sketcher.Constraint("Vertical", 1, 2, 4, 2),
    Sketcher.Constraint("Vertical", 7, 2, 10, 2),
    Sketcher.Constraint("Equal", 1, 5),
    Sketcher.Constraint("DistanceY", 1, 2, 1, 1, 1.96),
    Sketcher.Constraint("DistanceY", 3, 2, 3, 1, 5.68),
    Sketcher.Constraint("DistanceX", 1, 2, 2, 2, 3.4),
    Sketcher.Constraint("DistanceX", 0, 1, 0, 2, 6.018924),
    Sketcher.Constraint("DistanceX", 6, 2, -1, 1, 28.637181),
    Sketcher.Constraint("DistanceY", -1, 1, 0, 2, 6.466127),
])
sketch17.setExpression("Constraints[30]", "Params.sketch17_height")
sketch17.setExpression("Constraints[31]", "Params.sketch17_height2")
pocket16 = body.newObject("PartDesign::Pocket", "Pocket015")
pocket16.Profile = sketch17
pocket16.Type = "UpToFirst"
pocket16.Reversed = True

sketch18 = body.newObject("Sketcher::SketchObject", "Sketch017")
sketch18.AttachmentSupport = (doc.getObject("XY_Plane"), [""])
sketch18.MapMode = "FlatFace"
add_polygon(sketch18, [(-48.6, 6.5), (-42.6, 6.5), (-42.6, 4.5), (-39.2, 1.1), (-39.2, -4.6), (-42.6, -8), (-42.6, -9.9), (-48.6, -9.9), (-48.6, -8), (-52, -4.6), (-52, 1.1), (-48.6, 4.5)])
sketch18.addConstraint([
    Sketcher.Constraint("Horizontal", 0),
    Sketcher.Constraint("Vertical", 1),
    Sketcher.Constraint("Vertical", 3),
    Sketcher.Constraint("Vertical", 5),
    Sketcher.Constraint("Horizontal", 6),
    Sketcher.Constraint("Vertical", 7),
    Sketcher.Constraint("Vertical", 9),
    Sketcher.Constraint("Vertical", 11),
    Sketcher.Constraint("Perpendicular", 2, 4),
    Sketcher.Constraint("Perpendicular", 4, 8),
    Sketcher.Constraint("Perpendicular", 8, 10),
    Sketcher.Constraint("Horizontal", 4, 2, 7, 2),
    Sketcher.Constraint("Horizontal", 3, 2, 8, 2),
    Sketcher.Constraint("Horizontal", 2, 2, 9, 2),
    Sketcher.Constraint("Horizontal", 1, 2, 10, 2),
    Sketcher.Constraint("Vertical", 1, 2, 4, 2),
    Sketcher.Constraint("Vertical", 7, 2, 10, 2),
    Sketcher.Constraint("Equal", 1, 5),
    Sketcher.Constraint("DistanceY", 1, 2, 1, 1, 1.96),
    Sketcher.Constraint("DistanceY", 3, 2, 3, 1, 5.68),
    Sketcher.Constraint("DistanceX", 1, 2, 2, 2, 3.4),
    Sketcher.Constraint("DistanceX", 0, 1, 0, 2, 6.018924),
    Sketcher.Constraint("DistanceX", 6, 2, -1, 1, 48.637181),
    Sketcher.Constraint("DistanceY", -1, 1, 0, 2, 6.466127),
])
sketch18.setExpression("Constraints[30]", "Params.sketch18_height")
sketch18.setExpression("Constraints[31]", "Params.sketch18_height2")
pocket17 = body.newObject("PartDesign::Pocket", "Pocket016")
pocket17.Profile = sketch18
pocket17.Type = "UpToFirst"
pocket17.Reversed = True

doc.recompute()
